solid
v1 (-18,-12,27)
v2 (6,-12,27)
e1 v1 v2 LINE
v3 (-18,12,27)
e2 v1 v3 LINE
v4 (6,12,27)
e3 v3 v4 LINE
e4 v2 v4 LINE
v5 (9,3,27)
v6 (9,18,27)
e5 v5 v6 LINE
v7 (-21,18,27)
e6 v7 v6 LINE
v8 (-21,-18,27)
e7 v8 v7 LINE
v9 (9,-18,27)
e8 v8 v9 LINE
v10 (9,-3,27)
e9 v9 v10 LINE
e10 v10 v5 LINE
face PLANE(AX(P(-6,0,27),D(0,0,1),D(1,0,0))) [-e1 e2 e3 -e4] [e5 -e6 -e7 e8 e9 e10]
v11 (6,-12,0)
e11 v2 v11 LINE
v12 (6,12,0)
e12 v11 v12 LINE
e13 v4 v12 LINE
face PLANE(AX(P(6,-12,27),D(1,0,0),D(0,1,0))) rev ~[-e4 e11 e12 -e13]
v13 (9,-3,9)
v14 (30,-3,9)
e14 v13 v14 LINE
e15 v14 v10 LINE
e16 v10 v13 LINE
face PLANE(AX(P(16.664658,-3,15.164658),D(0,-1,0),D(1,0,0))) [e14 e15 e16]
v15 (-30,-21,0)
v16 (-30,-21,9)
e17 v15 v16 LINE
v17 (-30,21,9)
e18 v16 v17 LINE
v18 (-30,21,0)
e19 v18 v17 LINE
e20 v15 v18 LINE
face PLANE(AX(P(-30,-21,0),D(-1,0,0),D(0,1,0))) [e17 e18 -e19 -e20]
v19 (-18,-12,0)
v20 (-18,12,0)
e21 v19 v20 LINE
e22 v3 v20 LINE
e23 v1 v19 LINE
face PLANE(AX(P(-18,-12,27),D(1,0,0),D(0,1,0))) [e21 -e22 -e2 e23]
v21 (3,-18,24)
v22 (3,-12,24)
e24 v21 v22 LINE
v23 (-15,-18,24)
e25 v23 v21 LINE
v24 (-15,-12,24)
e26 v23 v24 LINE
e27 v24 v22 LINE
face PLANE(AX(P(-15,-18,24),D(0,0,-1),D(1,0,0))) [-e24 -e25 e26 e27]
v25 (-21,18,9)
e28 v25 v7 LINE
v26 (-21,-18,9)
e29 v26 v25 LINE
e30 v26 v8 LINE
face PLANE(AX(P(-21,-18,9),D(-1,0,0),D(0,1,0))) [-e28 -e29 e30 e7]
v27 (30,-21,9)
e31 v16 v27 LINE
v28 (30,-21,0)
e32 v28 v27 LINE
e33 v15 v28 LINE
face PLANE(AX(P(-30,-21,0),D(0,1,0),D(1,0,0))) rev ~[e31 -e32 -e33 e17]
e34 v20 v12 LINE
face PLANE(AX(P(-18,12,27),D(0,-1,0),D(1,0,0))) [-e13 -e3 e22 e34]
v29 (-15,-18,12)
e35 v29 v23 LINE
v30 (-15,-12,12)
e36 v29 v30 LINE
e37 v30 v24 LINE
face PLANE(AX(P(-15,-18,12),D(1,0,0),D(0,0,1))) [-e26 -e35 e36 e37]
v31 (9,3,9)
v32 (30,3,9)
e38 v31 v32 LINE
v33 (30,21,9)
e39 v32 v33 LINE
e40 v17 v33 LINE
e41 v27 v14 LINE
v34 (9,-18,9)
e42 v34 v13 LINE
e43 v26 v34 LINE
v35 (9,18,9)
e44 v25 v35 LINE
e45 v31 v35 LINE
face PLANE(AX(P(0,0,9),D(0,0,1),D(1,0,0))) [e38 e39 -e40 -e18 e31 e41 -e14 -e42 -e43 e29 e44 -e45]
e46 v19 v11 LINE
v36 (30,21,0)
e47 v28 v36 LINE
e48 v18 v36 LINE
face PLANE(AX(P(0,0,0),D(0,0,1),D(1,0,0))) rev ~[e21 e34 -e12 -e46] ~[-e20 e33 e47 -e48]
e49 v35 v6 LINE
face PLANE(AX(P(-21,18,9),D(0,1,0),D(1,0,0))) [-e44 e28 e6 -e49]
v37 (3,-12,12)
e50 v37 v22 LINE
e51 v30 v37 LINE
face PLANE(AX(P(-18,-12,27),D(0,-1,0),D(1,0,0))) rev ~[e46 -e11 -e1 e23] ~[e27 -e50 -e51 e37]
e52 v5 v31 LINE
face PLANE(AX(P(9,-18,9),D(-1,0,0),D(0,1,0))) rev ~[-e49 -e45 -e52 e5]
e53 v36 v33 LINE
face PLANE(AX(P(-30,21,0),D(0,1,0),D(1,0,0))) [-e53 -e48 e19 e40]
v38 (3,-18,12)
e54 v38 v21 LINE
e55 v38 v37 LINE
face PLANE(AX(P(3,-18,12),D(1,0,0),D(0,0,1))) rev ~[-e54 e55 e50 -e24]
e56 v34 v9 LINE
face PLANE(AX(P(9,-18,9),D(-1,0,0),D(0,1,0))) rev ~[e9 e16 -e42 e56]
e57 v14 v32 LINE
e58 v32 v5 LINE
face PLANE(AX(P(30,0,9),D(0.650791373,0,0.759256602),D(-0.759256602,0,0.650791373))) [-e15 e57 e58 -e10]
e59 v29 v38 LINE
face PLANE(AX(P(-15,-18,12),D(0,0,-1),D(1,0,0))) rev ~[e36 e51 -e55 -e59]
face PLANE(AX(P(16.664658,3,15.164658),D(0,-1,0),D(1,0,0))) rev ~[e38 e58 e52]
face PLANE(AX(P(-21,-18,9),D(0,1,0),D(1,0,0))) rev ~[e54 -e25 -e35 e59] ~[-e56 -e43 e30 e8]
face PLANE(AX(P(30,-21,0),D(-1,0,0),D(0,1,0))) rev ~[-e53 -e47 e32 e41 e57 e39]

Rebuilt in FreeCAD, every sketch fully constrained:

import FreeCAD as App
import Part
import Sketcher

doc = App.newDocument("Part")
body = doc.addObject("PartDesign::Body", "Body")

# Sketch on XZ plane
sketch1 = body.newObject("Sketcher::SketchObject", "Sketch")
sketch1.AttachmentSupport = (doc.getObject("XZ_Plane"), [""])
sketch1.MapMode = "FlatFace"
sketch1.addGeometry([
    Part.LineSegment(App.Vector(9, 27, 0), App.Vector(9, 9, 0)),
    Part.LineSegment(App.Vector(9, 9, 0), App.Vector(30, 9, 0)),
    Part.LineSegment(App.Vector(30, 9, 0), App.Vector(9, 27, 0)),
], False)
sketch1.addConstraint([
    Sketcher.Constraint("Coincident", 0, 2, 1, 1),
    Sketcher.Constraint("Coincident", 1, 2, 2, 1),
    Sketcher.Constraint("Coincident", 2, 2, 0, 1),
    Sketcher.Constraint("Vertical", 0),
    Sketcher.Constraint("Horizontal", 1),
    Sketcher.Constraint("DistanceX", 1, 1, 1, 2, 21.0),
    Sketcher.Constraint("DistanceY", 0, 2, 0, 1, 18.0),
    Sketcher.Constraint("DistanceX", -1, 1, 0, 2, 9.0),
    Sketcher.Constraint("DistanceY", -1, 1, 0, 2, 9.0),
])
pad1 = body.newObject("PartDesign::Pad", "Pad")
pad1.Profile = sketch1
pad1.Length = 6
pad1.Midplane = True
body2 = doc.addObject("PartDesign::Body", "Body001")

# Sketch on XY plane
sketch2 = body2.newObject("Sketcher::SketchObject", "Sketch001")
sketch2.AttachmentSupport = (doc.getObject("XY_Plane001"), [""])
sketch2.MapMode = "FlatFace"
sketch2.addGeometry([
    Part.LineSegment(App.Vector(-30, 21, 0), App.Vector(-30, -21, 0)),
    Part.LineSegment(App.Vector(-30, -21, 0), App.Vector(30, -21, 0)),
    Part.LineSegment(App.Vector(30, -21, 0), App.Vector(30, 21, 0)),
    Part.LineSegment(App.Vector(30, 21, 0), App.Vector(-30, 21, 0)),
], False)
sketch2.addConstraint([
    Sketcher.Constraint("Coincident", 0, 2, 1, 1),
    Sketcher.Constraint("Coincident", 1, 2, 2, 1),
    Sketcher.Constraint("Coincident", 2, 2, 3, 1),
    Sketcher.Constraint("Coincident", 3, 2, 0, 1),
    Sketcher.Constraint("Vertical", 0),
    Sketcher.Constraint("Horizontal", 1),
    Sketcher.Constraint("Vertical", 2),
    Sketcher.Constraint("Horizontal", 3),
    Sketcher.Constraint("Symmetric", 0, 2, 2, 2, -1, 1),
    Sketcher.Constraint("DistanceX", 1, 1, 1, 2, 60.0),
    Sketcher.Constraint("DistanceY", 0, 2, 0, 1, 42.0),
])
pad2 = body2.newObject("PartDesign::Pad", "Pad001")
pad2.Profile = sketch2
pad2.Length = 9

# Sketch on XY plane
sketch3 = body2.newObject("Sketcher::SketchObject", "Sketch002")
sketch3.AttachmentSupport = (doc.getObject("XY_Plane001"), [""])
sketch3.MapMode = "FlatFace"
sketch3.AttachmentOffset = App.Placement(App.Vector(0, 0, 9), App.Rotation())
sketch3.addGeometry([
    Part.LineSegment(App.Vector(-21, 18, 0), App.Vector(-21, -18, 0)),
    Part.LineSegment(App.Vector(-21, -18, 0), App.Vector(9, -18, 0)),
    Part.LineSegment(App.Vector(9, -18, 0), App.Vector(9, 18, 0)),
    Part.LineSegment(App.Vector(9, 18, 0), App.Vector(-21, 18, 0)),
], False)
sketch3.addConstraint([
    Sketcher.Constraint("Coincident", 0, 2, 1, 1),
    Sketcher.Constraint("Coincident", 1, 2, 2, 1),
    Sketcher.Constraint("Coincident", 2, 2, 3, 1),
    Sketcher.Constraint("Coincident", 3, 2, 0, 1),
    Sketcher.Constraint("Vertical", 0),
    Sketcher.Constraint("Horizontal", 1),
    Sketcher.Constraint("Vertical", 2),
    Sketcher.Constraint("Horizontal", 3),
    Sketcher.Constraint("DistanceX", 1, 1, 1, 2, 30.0),
    Sketcher.Constraint("DistanceY", 0, 2, 0, 1, 36.0),
    Sketcher.Constraint("DistanceX", 0, 2, -1, 1, 21.0),
    Sketcher.Constraint("DistanceY", 0, 2, -1, 1, 18.0),
])
pad3 = body2.newObject("PartDesign::Pad", "Pad002")
pad3.Profile = sketch3
pad3.Length = 18

# Sketch on XY plane
sketch4 = body2.newObject("Sketcher::SketchObject", "Sketch003")
sketch4.AttachmentSupport = (doc.getObject("XY_Plane001"), [""])
sketch4.MapMode = "FlatFace"
sketch4.AttachmentOffset = App.Placement(App.Vector(0, 0, 27), App.Rotation())
sketch4.addGeometry([
    Part.LineSegment(App.Vector(-18, 12, 0), App.Vector(-18, -12, 0)),
    Part.LineSegment(App.Vector(-18, -12, 0), App.Vector(6, -12, 0)),
    Part.LineSegment(App.Vector(6, -12, 0), App.Vector(6, 12, 0)),
    Part.LineSegment(App.Vector(6, 12, 0), App.Vector(-18, 12, 0)),
], False)
sketch4.addConstraint([
    Sketcher.Constraint("Coincident", 0, 2, 1, 1),
    Sketcher.Constraint("Coincident", 1, 2, 2, 1),
    Sketcher.Constraint("Coincident", 2, 2, 3, 1),
    Sketcher.Constraint("Coincident", 3, 2, 0, 1),
    Sketcher.Constraint("Vertical", 0),
    Sketcher.Constraint("Horizontal", 1),
    Sketcher.Constraint("Vertical", 2),
    Sketcher.Constraint("Horizontal", 3),
    Sketcher.Constraint("Equal", 3, 0),
    Sketcher.Constraint("DistanceX", 1, 1, 1, 2, 24.0),
    Sketcher.Constraint("DistanceX", 0, 2, -1, 1, 18.0),
    Sketcher.Constraint("DistanceY", 0, 2, -1, 1, 12.0),
])
pocket1 = body2.newObject("PartDesign::Pocket", "Pocket")
pocket1.Profile = sketch4
pocket1.Type = "ThroughAll"

# Sketch on XZ plane
sketch5 = body2.newObject("Sketcher::SketchObject", "Sketch004")
sketch5.AttachmentSupport = (doc.getObject("XZ_Plane001"), [""])
sketch5.MapMode = "FlatFace"
sketch5.AttachmentOffset = App.Placement(App.Vector(0, 0, 18), App.Rotation())
sketch5.addGeometry([
    Part.LineSegment(App.Vector(-15, 24, 0), App.Vector(-15, 12, 0)),
    Part.LineSegment(App.Vector(-15, 12, 0), App.Vector(3, 12, 0)),
    Part.LineSegment(App.Vector(3, 12, 0), App.Vector(3, 24, 0)),
    Part.LineSegment(App.Vector(3, 24, 0), App.Vector(-15, 24, 0)),
], False)
sketch5.addConstraint([
    Sketcher.Constraint("Coincident", 0, 2, 1, 1),
    Sketcher.Constraint("Coincident", 1, 2, 2, 1),
    Sketcher.Constraint("Coincident", 2, 2, 3, 1),
    Sketcher.Constraint("Coincident", 3, 2, 0, 1),
    Sketcher.Constraint("Vertical", 0),
    Sketcher.Constraint("Horizontal", 1),
    Sketcher.Constraint("Vertical", 2),
    Sketcher.Constraint("Horizontal", 3),
    Sketcher.Constraint("DistanceX", 1, 1, 1, 2, 18.0),
    Sketcher.Constraint("DistanceY", 0, 2, 0, 1, 12.0),
    Sketcher.Constraint("DistanceX", 0, 2, -1, 1, 15.0),
    Sketcher.Constraint("DistanceY", -1, 1, 0, 2, 12.0),
])
pocket2 = body2.newObject("PartDesign::Pocket", "Pocket001")
pocket2.Profile = sketch5
pocket2.Length = 6
doc.recompute()

boolean = body2.newObject("PartDesign::Boolean", "Boolean")
boolean.Type = "Fuse"
boolean.addObjects([body])

doc.recompute()
